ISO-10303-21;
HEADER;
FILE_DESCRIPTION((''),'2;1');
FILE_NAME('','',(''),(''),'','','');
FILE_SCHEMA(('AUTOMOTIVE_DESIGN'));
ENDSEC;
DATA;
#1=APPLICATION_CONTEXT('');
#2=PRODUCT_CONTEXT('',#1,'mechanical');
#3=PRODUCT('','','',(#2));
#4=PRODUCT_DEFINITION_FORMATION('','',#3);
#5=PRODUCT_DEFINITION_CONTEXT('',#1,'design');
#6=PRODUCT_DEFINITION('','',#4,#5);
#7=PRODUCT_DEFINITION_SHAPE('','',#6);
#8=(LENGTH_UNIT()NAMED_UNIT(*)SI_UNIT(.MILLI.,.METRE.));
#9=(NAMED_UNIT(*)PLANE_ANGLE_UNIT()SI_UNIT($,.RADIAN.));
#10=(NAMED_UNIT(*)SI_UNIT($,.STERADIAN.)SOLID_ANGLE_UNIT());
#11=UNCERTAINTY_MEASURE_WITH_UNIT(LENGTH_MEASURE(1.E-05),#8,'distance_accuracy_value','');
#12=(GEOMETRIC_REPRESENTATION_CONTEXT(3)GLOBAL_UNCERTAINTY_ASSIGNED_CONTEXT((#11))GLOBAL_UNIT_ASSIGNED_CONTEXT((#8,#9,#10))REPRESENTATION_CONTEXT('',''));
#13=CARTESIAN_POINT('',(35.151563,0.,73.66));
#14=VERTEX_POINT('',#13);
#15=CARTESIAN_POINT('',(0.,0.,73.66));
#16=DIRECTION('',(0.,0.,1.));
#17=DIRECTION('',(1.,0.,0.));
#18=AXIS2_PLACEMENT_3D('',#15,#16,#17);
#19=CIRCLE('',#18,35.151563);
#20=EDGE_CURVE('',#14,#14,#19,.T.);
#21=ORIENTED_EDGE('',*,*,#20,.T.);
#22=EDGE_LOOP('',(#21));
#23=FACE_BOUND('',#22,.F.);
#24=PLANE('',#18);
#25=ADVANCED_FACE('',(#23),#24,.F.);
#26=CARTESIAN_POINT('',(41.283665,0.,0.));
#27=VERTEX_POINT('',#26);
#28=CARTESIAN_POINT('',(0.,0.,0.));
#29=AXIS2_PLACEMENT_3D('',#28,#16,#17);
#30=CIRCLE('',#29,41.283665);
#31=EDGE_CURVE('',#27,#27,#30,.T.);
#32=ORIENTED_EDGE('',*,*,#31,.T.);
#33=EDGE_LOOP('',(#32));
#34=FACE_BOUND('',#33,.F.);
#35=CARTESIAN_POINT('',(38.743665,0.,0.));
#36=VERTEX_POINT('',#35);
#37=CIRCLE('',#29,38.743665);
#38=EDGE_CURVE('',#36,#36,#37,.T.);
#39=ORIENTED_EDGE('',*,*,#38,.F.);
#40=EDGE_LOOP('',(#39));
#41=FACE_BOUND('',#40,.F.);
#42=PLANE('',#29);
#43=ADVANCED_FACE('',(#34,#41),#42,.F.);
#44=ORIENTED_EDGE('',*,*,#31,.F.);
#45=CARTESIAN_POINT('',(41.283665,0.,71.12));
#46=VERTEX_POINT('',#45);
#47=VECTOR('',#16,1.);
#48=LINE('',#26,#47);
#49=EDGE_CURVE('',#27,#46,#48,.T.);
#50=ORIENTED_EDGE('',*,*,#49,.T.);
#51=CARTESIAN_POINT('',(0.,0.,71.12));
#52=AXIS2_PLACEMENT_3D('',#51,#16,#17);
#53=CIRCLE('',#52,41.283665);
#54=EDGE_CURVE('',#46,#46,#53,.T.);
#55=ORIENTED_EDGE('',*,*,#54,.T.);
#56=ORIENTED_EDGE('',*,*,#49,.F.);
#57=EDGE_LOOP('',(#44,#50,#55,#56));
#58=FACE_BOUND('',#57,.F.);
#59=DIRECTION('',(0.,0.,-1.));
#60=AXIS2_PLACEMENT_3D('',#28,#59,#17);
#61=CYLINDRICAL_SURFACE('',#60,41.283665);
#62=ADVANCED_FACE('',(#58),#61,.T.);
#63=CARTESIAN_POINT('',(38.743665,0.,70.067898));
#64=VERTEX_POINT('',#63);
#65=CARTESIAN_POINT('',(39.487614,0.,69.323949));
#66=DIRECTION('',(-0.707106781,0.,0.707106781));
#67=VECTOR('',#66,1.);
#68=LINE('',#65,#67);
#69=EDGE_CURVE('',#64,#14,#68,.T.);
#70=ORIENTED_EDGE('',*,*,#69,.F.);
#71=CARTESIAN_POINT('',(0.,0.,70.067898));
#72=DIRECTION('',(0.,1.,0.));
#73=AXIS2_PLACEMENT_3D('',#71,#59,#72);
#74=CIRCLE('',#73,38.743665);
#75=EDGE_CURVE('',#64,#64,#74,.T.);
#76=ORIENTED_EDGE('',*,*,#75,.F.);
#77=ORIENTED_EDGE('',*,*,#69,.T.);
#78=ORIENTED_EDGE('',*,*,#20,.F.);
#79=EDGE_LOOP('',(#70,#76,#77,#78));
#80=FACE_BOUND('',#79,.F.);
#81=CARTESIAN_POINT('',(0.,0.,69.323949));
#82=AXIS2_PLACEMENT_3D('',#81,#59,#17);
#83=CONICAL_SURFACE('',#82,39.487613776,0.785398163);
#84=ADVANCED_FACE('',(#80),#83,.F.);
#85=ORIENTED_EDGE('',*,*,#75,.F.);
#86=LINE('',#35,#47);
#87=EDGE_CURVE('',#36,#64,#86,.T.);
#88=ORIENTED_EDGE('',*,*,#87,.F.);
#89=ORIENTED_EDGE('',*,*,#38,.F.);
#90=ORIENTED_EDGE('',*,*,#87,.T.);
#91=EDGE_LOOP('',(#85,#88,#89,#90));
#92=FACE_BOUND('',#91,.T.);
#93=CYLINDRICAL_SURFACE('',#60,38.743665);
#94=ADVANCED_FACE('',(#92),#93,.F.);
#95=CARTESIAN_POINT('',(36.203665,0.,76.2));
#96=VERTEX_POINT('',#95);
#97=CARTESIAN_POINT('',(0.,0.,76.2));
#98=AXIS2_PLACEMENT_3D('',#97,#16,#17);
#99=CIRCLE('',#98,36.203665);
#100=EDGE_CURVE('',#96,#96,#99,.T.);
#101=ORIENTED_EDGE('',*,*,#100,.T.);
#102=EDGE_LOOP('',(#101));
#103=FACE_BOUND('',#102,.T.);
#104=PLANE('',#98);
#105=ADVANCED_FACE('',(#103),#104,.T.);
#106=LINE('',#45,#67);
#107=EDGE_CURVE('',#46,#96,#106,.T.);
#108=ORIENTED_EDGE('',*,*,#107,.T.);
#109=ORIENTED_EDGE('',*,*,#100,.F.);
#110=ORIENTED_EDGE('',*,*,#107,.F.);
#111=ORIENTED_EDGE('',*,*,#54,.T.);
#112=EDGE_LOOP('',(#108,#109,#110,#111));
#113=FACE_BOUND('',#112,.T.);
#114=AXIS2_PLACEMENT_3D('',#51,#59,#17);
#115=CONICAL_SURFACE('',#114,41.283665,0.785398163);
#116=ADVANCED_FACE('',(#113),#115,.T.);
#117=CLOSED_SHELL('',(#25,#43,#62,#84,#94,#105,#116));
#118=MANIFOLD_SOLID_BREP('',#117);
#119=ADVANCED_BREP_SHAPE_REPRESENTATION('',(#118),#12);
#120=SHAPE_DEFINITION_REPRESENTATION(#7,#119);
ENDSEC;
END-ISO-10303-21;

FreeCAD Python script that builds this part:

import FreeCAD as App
import Part
import Sketcher

V = App.Vector


def edges_at(feature, points):
    """Names of the edges that pass closest to the given points."""
    edges = feature.Shape.Edges
    near = lambda p: min(range(len(edges)), key=lambda i: edges[i].distToShape(Part.Vertex(*p))[0])
    return sorted({f"Edge{near(p) + 1}" for p in points})


def faces_at(feature, points):
    """Names of the faces that lie closest to the given points."""
    faces = feature.Shape.Faces
    near = lambda p: min(range(len(faces)), key=lambda i: faces[i].distToShape(Part.Vertex(*p))[0])
    return sorted({f"Face{near(p) + 1}" for p in points})

doc = App.newDocument("Part")
params = doc.addObject("Spreadsheet::Sheet", "Params")
for row, (alias, value) in enumerate([
    ("pad1_length", "3 in"),
    ("chamfer_size", "0.2 in"),
    ("thickness_wall", "0.1 in"),
], start=1):
    params.set(f"A{row}", alias)
    params.set(f"B{row}", "=" + value)
    params.setAlias(f"B{row}", alias)

body = doc.addObject("PartDesign::Body", "Body")

sketch1 = body.newObject("Sketcher::SketchObject", "Sketch")
sketch1.AttachmentSupport = (doc.getObject("XY_Plane"), [""])
sketch1.MapMode = "FlatFace"
sketch1.addGeometry(Part.Circle(V(0, 0, 0), V(0, 0, 1), 41), False)
sketch1.addConstraint([
    Sketcher.Constraint("Coincident", 0, 3, -1, 1),
    Sketcher.Constraint("Diameter", 0, 82.56733),
])
pad1 = body.newObject("PartDesign::Pad", "Pad")
pad1.Profile = sketch1
pad1.setExpression("Length", "Params.pad1_length")
doc.recompute()

chamfer = body.newObject("PartDesign::Chamfer", "Chamfer")
chamfer.Base = (pad1, edges_at(pad1, [(-41.284, 0, 76.2)]))
chamfer.setExpression("Size", "Params.chamfer_size")
doc.recompute()

thickness = body.newObject("PartDesign::Thickness", "Thickness")
thickness.Base = (chamfer, faces_at(chamfer, [(0, 0, 0)]))
thickness.setExpression("Value", "Params.thickness_wall")
thickness.Reversed = True
thickness.Join = "Arc"

doc.recompute()
